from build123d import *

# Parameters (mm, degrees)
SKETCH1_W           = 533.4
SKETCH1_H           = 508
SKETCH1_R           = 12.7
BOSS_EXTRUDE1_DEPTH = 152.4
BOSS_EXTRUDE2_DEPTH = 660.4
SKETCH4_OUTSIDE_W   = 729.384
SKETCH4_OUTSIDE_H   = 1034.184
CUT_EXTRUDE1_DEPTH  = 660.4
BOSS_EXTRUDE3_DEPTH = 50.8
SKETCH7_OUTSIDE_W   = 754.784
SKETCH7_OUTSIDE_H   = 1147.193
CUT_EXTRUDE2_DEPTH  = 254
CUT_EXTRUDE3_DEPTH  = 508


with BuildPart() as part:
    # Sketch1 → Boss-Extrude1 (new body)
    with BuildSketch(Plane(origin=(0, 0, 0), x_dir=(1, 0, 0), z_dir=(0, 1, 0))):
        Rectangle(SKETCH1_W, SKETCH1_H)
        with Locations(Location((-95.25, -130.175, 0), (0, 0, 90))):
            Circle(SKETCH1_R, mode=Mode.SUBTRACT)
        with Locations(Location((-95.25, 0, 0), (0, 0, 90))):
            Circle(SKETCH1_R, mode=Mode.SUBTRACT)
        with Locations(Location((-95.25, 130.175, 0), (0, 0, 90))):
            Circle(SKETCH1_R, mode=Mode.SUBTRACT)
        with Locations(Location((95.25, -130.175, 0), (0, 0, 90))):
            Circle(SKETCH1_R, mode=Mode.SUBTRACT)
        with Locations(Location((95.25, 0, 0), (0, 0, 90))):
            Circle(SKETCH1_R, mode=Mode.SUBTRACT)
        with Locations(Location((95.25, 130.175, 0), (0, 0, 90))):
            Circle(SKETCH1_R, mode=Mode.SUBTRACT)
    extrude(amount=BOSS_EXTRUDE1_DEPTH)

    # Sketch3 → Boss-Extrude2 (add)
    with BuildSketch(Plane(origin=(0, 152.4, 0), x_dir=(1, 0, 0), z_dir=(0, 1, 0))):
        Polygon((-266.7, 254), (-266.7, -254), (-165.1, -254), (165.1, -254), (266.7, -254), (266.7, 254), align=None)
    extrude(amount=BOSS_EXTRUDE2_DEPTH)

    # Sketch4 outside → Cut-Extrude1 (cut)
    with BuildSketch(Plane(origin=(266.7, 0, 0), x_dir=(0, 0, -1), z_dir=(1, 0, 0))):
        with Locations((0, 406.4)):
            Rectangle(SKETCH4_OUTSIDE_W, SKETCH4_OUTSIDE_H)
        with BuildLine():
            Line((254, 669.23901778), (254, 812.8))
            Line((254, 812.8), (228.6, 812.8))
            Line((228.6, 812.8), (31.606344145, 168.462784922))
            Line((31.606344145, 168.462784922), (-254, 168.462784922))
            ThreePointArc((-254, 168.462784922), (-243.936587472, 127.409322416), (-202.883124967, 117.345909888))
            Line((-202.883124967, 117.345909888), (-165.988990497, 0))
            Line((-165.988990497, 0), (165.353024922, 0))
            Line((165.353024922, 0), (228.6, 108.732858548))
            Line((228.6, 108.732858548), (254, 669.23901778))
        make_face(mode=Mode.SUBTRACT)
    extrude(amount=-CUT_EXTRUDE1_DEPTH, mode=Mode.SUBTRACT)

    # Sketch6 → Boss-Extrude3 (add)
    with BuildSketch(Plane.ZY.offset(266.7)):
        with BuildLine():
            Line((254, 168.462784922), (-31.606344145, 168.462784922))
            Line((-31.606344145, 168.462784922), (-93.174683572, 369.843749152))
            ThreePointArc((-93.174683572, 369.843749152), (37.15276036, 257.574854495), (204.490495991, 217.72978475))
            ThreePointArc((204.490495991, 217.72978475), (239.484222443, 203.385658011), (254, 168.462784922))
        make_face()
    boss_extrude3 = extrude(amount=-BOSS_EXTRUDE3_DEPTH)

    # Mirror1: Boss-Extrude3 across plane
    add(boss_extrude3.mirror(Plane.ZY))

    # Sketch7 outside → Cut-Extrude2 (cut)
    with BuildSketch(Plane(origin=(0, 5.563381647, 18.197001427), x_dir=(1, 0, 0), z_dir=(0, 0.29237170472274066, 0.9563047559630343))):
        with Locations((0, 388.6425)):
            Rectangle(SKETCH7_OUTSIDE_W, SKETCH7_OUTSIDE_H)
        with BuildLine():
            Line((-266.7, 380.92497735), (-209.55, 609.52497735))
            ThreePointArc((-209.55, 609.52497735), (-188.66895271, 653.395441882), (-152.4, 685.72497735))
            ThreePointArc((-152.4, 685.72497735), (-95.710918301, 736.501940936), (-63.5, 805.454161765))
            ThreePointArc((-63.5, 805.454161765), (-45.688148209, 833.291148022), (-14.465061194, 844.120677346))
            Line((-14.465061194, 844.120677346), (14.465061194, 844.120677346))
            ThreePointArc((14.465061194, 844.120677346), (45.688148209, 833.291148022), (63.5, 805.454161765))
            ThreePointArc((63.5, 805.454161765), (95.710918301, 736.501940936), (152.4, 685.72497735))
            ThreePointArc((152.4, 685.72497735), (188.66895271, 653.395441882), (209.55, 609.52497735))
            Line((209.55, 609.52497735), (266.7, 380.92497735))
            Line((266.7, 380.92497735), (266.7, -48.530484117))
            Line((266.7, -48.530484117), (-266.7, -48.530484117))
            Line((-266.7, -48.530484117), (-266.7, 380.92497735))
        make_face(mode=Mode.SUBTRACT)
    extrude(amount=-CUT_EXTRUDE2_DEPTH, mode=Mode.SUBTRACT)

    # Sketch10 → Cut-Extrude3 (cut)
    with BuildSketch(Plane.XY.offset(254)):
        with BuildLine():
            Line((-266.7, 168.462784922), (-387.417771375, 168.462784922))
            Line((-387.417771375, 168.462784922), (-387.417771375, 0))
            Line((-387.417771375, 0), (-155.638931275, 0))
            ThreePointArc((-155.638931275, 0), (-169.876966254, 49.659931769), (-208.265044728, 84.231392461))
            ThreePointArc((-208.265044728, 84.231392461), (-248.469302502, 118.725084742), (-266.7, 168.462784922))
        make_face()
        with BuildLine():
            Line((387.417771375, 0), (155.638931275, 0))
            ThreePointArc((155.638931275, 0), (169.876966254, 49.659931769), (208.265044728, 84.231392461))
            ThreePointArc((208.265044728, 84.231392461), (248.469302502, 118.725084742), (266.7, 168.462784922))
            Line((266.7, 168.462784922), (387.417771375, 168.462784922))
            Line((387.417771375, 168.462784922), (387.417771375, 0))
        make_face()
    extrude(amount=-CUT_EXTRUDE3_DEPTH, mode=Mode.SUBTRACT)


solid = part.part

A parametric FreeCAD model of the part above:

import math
import FreeCAD as App
import Part
import Sketcher
Q = App.Units.Quantity

doc = App.newDocument("Part")
body = doc.addObject("PartDesign::Body", "Body")

# Sketch on XZ plane
sketch1 = doc.addObject("Sketcher::SketchObject", "Sketch")
body.addObject(sketch1)
sketch1.AttachmentSupport = (doc.XZ_Plane, [""])
sketch1.MapMode = "FlatFace"
sketch1.addGeometry([
    Part.LineSegment(App.Vector(-266.7, -254, 0), App.Vector(-266.7, 254, 0)),  # 0
    Part.LineSegment(App.Vector(-266.7, 254, 0), App.Vector(266.7, 254, 0)),  # 1
    Part.LineSegment(App.Vector(266.7, 254, 0), App.Vector(266.7, -254, 0)),  # 2
    Part.LineSegment(App.Vector(266.7, -254, 0), App.Vector(-266.7, -254, 0)),  # 3
    Part.Circle(App.Vector(-95.25, 130.175, 0), App.Vector(0, 0, 1), 12.7),  # 4
    Part.Circle(App.Vector(95.25, 130.175, 0), App.Vector(0, 0, 1), 12.7),  # 5
    Part.Circle(App.Vector(-95.25, 0, 0), App.Vector(0, 0, 1), 12.7),  # 6
    Part.Circle(App.Vector(-95.25, -130.175, 0), App.Vector(0, 0, 1), 12.7),  # 7
    Part.Circle(App.Vector(95.25, 0, 0), App.Vector(0, 0, 1), 12.7),  # 8
    Part.Circle(App.Vector(95.25, -130.175, 0), App.Vector(0, 0, 1), 12.7),  # 9
], False)
sketch1.addConstraint([
    Sketcher.Constraint("Coincident", 0, 2, 1, 1),
    Sketcher.Constraint("Coincident", 1, 2, 2, 1),
    Sketcher.Constraint("Coincident", 2, 2, 3, 1),
    Sketcher.Constraint("Coincident", 3, 2, 0, 1),
    Sketcher.Constraint("Vertical", 0),
    Sketcher.Constraint("Horizontal", 1),
    Sketcher.Constraint("Vertical", 2),
    Sketcher.Constraint("Horizontal", 3),
    Sketcher.Constraint("Equal", 4, 5),
    Sketcher.Constraint("Equal", 5, 6),
    Sketcher.Constraint("Equal", 6, 7),
    Sketcher.Constraint("Equal", 7, 8),
    Sketcher.Constraint("Equal", 8, 9),
    Sketcher.Constraint("Symmetric", 5, 3, 7, 3, -1, 1),
    Sketcher.Constraint("Symmetric", 6, 3, 8, 3, -1, 1),
    Sketcher.Constraint("Symmetric", 4, 3, 9, 3, -1, 1),
    Sketcher.Constraint("Symmetric", 0, 2, 2, 2, -1, 1),
    Sketcher.Constraint("Symmetric", 4, 3, 5, 3, -2),
    Sketcher.Constraint("PointOnObject", 6, 3, -1),
    Sketcher.Constraint("Vertical", 4, 3, 6, 3),
    Sketcher.Constraint("Diameter", 4, Q("1 in")),
    Sketcher.Constraint("DistanceX", 1, 1, 1, 2, Q("21 in")),
    Sketcher.Constraint("DistanceY", 0, 1, 0, 2, Q("20 in")),
    Sketcher.Constraint("DistanceX", 4, 3, 5, 3, Q("7.5 in")),
    Sketcher.Constraint("DistanceY", 7, 3, 4, 3, Q("10.25 in")),
])
pad1 = doc.addObject("PartDesign::Pad", "Pad")
body.addObject(pad1)
pad1.Profile = sketch1
pad1.Length = Q("6 in")
pad1.Reversed = True

# Sketch on XZ plane
sketch2 = doc.addObject("Sketcher::SketchObject", "Sketch001")
body.addObject(sketch2)
sketch2.AttachmentSupport = (doc.XZ_Plane, [""])
sketch2.MapMode = "FlatFace"
sketch2.AttachmentOffset = App.Placement(App.Vector(0, 0, -6 * 25.4), App.Rotation())
sketch2.addGeometry([
    Part.LineSegment(App.Vector(-266.7, -254, 0), App.Vector(-266.7, 254, 0)),
    Part.LineSegment(App.Vector(-266.7, 254, 0), App.Vector(266.7, 254, 0)),
    Part.LineSegment(App.Vector(266.7, 254, 0), App.Vector(266.7, -254, 0)),
    Part.LineSegment(App.Vector(266.7, -254, 0), App.Vector(-266.7, -254, 0)),
], False)
sketch2.addConstraint([
    Sketcher.Constraint("Coincident", 0, 2, 1, 1),
    Sketcher.Constraint("Coincident", 1, 2, 2, 1),
    Sketcher.Constraint("Coincident", 2, 2, 3, 1),
    Sketcher.Constraint("Coincident", 3, 2, 0, 1),
    Sketcher.Constraint("Vertical", 0),
    Sketcher.Constraint("Horizontal", 1),
    Sketcher.Constraint("Vertical", 2),
    Sketcher.Constraint("Horizontal", 3),
    Sketcher.Constraint("Symmetric", 0, 2, 2, 2, -1, 1),
    Sketcher.Constraint("DistanceX", 1, 1, 1, 2, Q("21 in")),
    Sketcher.Constraint("DistanceY", 0, 1, 0, 2, Q("20 in")),
])
pad2 = doc.addObject("PartDesign::Pad", "Pad001")
body.addObject(pad2)
pad2.Profile = sketch2
pad2.Length = Q("26 in")
pad2.Reversed = True

# Sketch on YZ plane
sketch3 = doc.addObject("Sketcher::SketchObject", "Sketch002")
body.addObject(sketch3)
sketch3.AttachmentSupport = (doc.YZ_Plane, [""])
sketch3.MapMode = "FlatFace"
sketch3.AttachmentOffset = App.Placement(App.Vector(0, 0, 10.5 * 25.4), App.Rotation())
sketch3.addGeometry([
    Part.LineSegment(App.Vector(923.492, 364.692, 0), App.Vector(-110.692, 364.692, 0)),  # 0
    Part.LineSegment(App.Vector(-110.692, 364.692, 0), App.Vector(-110.692, -364.692, 0)),  # 1
    Part.LineSegment(App.Vector(-110.692, -364.692, 0), App.Vector(923.492, -364.692, 0)),  # 2
    Part.LineSegment(App.Vector(923.492, -364.692, 0), App.Vector(923.492, 364.692, 0)),  # 3
    Part.LineSegment(App.Vector(812.8, -254, 0), App.Vector(669.239018, -254, 0)),  # 4
    Part.LineSegment(App.Vector(669.239018, -254, 0), App.Vector(108.732859, -228.6, 0)),  # 5
    Part.LineSegment(App.Vector(108.732859, -228.6, 0), App.Vector(0, -165.353025, 0)),  # 6
    Part.LineSegment(App.Vector(0, -165.353025, 0), App.Vector(0, 165.98899, 0)),  # 7
    Part.LineSegment(App.Vector(0, 165.98899, 0), App.Vector(117.34591, 202.883125, 0)),  # 8
    Part.ArcOfCircle(Part.Circle(App.Vector(156.235656, 215.110254, 0), App.Vector(0, 0, 1), 40.766592), math.radians(72.546594), math.radians(197.453406)),  # 9
    Part.LineSegment(App.Vector(168.462785, 254, 0), App.Vector(168.462785, -31.606344, 0)),  # 10
    Part.LineSegment(App.Vector(168.462785, -31.606344, 0), App.Vector(812.8, -228.6, 0)),  # 11
    Part.LineSegment(App.Vector(812.8, -228.6, 0), App.Vector(812.8, -254, 0)),  # 12
], False)
sketch3.addConstraint([
    Sketcher.Constraint("Coincident", 0, 2, 1, 1),
    Sketcher.Constraint("Coincident", 1, 2, 2, 1),
    Sketcher.Constraint("Coincident", 2, 2, 3, 1),
    Sketcher.Constraint("Coincident", 3, 2, 0, 1),
    Sketcher.Constraint("Coincident", 4, 2, 5, 1),
    Sketcher.Constraint("Coincident", 5, 2, 6, 1),
    Sketcher.Constraint("Coincident", 6, 2, 7, 1),
    Sketcher.Constraint("Coincident", 7, 2, 8, 1),
    Sketcher.Constraint("Coincident", 8, 2, 9, 2),
    Sketcher.Constraint("Coincident", 9, 1, 10, 1),
    Sketcher.Constraint("Coincident", 10, 2, 11, 1),
    Sketcher.Constraint("Coincident", 11, 2, 12, 1),
    Sketcher.Constraint("Coincident", 12, 2, 4, 1),
    Sketcher.Constraint("Horizontal", 0),
    Sketcher.Constraint("Vertical", 1),
    Sketcher.Constraint("Horizontal", 2),
    Sketcher.Constraint("Vertical", 3),
    Sketcher.Constraint("Horizontal", 4),
    Sketcher.Constraint("Vertical", 7),
    Sketcher.Constraint("Vertical", 10),
    Sketcher.Constraint("Vertical", 12),
    Sketcher.Constraint("PointOnObject", 6, 2, -2),
    Sketcher.Constraint("Horizontal", 5, 2, 11, 2),
    Sketcher.Constraint("DistanceY", 12, 2, 12, 1, Q("1 in")),
    Sketcher.Constraint("DistanceY", 4, 2, -1, 1, Q("10 in")),
    Sketcher.Constraint("DistanceY", -1, 1, 9, 1, Q("10 in")),
    Sketcher.Constraint("DistanceX", -1, 1, 11, 2, Q("32 in")),
    Sketcher.Constraint("Angle", 11, Q("-17 deg")),
    Sketcher.Constraint("DistanceX", 0, 2, 0, 1, 1034.184),
    Sketcher.Constraint("DistanceY", 1, 2, 1, 1, 729.384),
    Sketcher.Constraint("Radius", 9, 40.766592),
    Sketcher.Constraint("DistanceX", 0, 2, -1, 1, 110.692),
    Sketcher.Constraint("DistanceY", -1, 1, 0, 2, 364.692),
    Sketcher.Constraint("Distance", 5, 561.08138),
    Sketcher.Constraint("DistanceX", 4, 2, 4, 1, 143.560982),
    Sketcher.Constraint("DistanceY", 7, 1, 7, 2, 331.342015),
    Sketcher.Constraint("DistanceY", 10, 2, 10, 1, 285.606344),
    Sketcher.Constraint("DistanceY", -1, 1, 7, 2, 165.98899),
    Sketcher.Constraint("DistanceX", -1, 1, 8, 2, 117.34591),
    Sketcher.Constraint("DistanceX", 9, 3, 4, 2, 513.003361),
])
pocket1 = doc.addObject("PartDesign::Pocket", "Pocket")
body.addObject(pocket1)
pocket1.Profile = sketch3
pocket1.Length = Q("26 in")

# Sketch on YZ plane
sketch4 = doc.addObject("Sketcher::SketchObject", "Sketch003")
body.addObject(sketch4)
sketch4.AttachmentSupport = (doc.YZ_Plane, [""])
sketch4.MapMode = "FlatFace"
sketch4.AttachmentOffset = App.Placement(App.Vector(0, 0, -10.5 * 25.4), App.Rotation())
sketch4.addGeometry([
    Part.LineSegment(App.Vector(168.462785, -31.606344, 0), App.Vector(168.462785, 254, 0)),
    Part.ArcOfCircle(Part.Circle(App.Vector(168.462785, 204.732406, 0), App.Vector(0, 0, 1), 49.267594), math.radians(-0.281331), math.radians(90)),
    Part.ArcOfCircle(Part.Circle(App.Vector(581.535132, 202.704143, 0), App.Vector(0, 0, 1), 363.809732), math.radians(179.718669), math.radians(234.41755)),
    Part.LineSegment(App.Vector(369.843749, -93.174684, 0), App.Vector(168.462785, -31.606344, 0)),
], False)
sketch4.addConstraint([
    Sketcher.Constraint("Coincident", 0, 2, 1, 2),
    Sketcher.Constraint("Tangent", 1, 1, 2, 1),
    Sketcher.Constraint("Coincident", 2, 2, 3, 1),
    Sketcher.Constraint("Coincident", 3, 2, 0, 1),
    Sketcher.Constraint("Vertical", 0),
    Sketcher.Constraint("Vertical", 1, 3, 0, 2),
    Sketcher.Constraint("DistanceY", -1, 1, 0, 2, Q("10 in")),
    Sketcher.Constraint("Angle", 3, Q("163 deg")),
    Sketcher.Constraint("Radius", 1, 49.267594),
    Sketcher.Constraint("Radius", 2, 363.809732),
    Sketcher.Constraint("DistanceY", 0, 1, 0, 2, 285.606344),
    Sketcher.Constraint("DistanceX", -1, 1, 2, 3, 581.535132),
    Sketcher.Constraint("DistanceX", -1, 1, 2, 2, 369.843749),
])
pad3 = doc.addObject("PartDesign::Pad", "Pad002")
body.addObject(pad3)
pad3.Profile = sketch4
pad3.Length = Q("2 in")
doc.recompute()

mirrored = doc.addObject("PartDesign::Mirrored", "Mirrored")
body.addObject(mirrored)
mirrored.Originals = [pad3]
mirrored.MirrorPlane = (doc.YZ_Plane, [""])
body.Tip = mirrored

# Sketch on an angled plane
sketch5 = doc.addObject("Sketcher::SketchObject", "Sketch004")
body.addObject(sketch5)
sketch5.Placement = App.Placement(App.Vector(0, 5.563382, 18.197001), App.Rotation(App.Vector(1, 0, 0), App.Vector(0, 0.956304756, -0.292371705), App.Vector(0, 0.292371705, 0.956304756), "ZXY"))
sketch5.addGeometry([
    Part.LineSegment(App.Vector(-377.392, 962.239, 0), App.Vector(-377.392, -184.954, 0)),  # 0
    Part.LineSegment(App.Vector(-377.392, -184.954, 0), App.Vector(377.392, -184.954, 0)),  # 1
    Part.LineSegment(App.Vector(377.392, -184.954, 0), App.Vector(377.392, 962.239, 0)),  # 2
    Part.LineSegment(App.Vector(377.392, 962.239, 0), App.Vector(-377.392, 962.239, 0)),  # 3
    Part.LineSegment(App.Vector(-266.7, -48.530484, 0), App.Vector(-266.7, 380.924977, 0)),  # 4
    Part.LineSegment(App.Vector(-266.7, 380.924977, 0), App.Vector(-209.55, 609.524977, 0)),  # 5
    Part.ArcOfCircle(Part.Circle(App.Vector(-90.4875, 579.759352, 0), App.Vector(0, 0, 1), 122.726816), math.radians(120.296448), math.radians(165.963757)),  # 6
    Part.ArcOfCircle(Part.Circle(App.Vector(-248.237252, 849.754121, 0), App.Vector(0, 0, 1), 189.974574), math.radians(-59.703552), math.radians(-13.484888)),  # 7
    Part.ArcOfCircle(Part.Circle(App.Vector(-14.465061, 793.695593, 0), App.Vector(0, 0, 1), 50.425085), math.radians(90), math.radians(166.515112)),  # 8
    Part.LineSegment(App.Vector(-14.465061, 844.120678, 0), App.Vector(14.465061, 844.120678, 0)),  # 9
    Part.ArcOfCircle(Part.Circle(App.Vector(14.465061, 793.695593, 0), App.Vector(0, 0, 1), 50.425085), math.radians(13.484888), math.radians(90)),  # 10
    Part.ArcOfCircle(Part.Circle(App.Vector(248.237252, 849.754121, 0), App.Vector(0, 0, 1), 189.974574), math.radians(-166.515112), math.radians(-120.296448)),  # 11
    Part.ArcOfCircle(Part.Circle(App.Vector(90.4875, 579.759352, 0), App.Vector(0, 0, 1), 122.726816), math.radians(14.036243), math.radians(59.703552)),  # 12
    Part.LineSegment(App.Vector(209.55, 609.524977, 0), App.Vector(266.7, 380.924977, 0)),  # 13
    Part.LineSegment(App.Vector(266.7, 380.924977, 0), App.Vector(266.7, -48.530484, 0)),  # 14
    Part.LineSegment(App.Vector(266.7, -48.530484, 0), App.Vector(-266.7, -48.530484, 0)),  # 15
], False)
sketch5.addConstraint([
    Sketcher.Constraint("Coincident", 0, 2, 1, 1),
    Sketcher.Constraint("Coincident", 1, 2, 2, 1),
    Sketcher.Constraint("Coincident", 2, 2, 3, 1),
    Sketcher.Constraint("Coincident", 3, 2, 0, 1),
    Sketcher.Constraint("Coincident", 4, 2, 5, 1),
    Sketcher.Constraint("Tangent", 5, 2, 6, 2),
    Sketcher.Constraint("Tangent", 6, 1, 7, 1),
    Sketcher.Constraint("Tangent", 7, 2, 8, 2),
    Sketcher.Constraint("Tangent", 8, 1, 9, 1),
    Sketcher.Constraint("Tangent", 9, 2, 10, 2),
    Sketcher.Constraint("Tangent", 10, 1, 11, 1),
    Sketcher.Constraint("Tangent", 11, 2, 12, 2),
    Sketcher.Constraint("Tangent", 12, 1, 13, 1),
    Sketcher.Constraint("Coincident", 13, 2, 14, 1),
    Sketcher.Constraint("Coincident", 14, 2, 15, 1),
    Sketcher.Constraint("Coincident", 15, 2, 4, 1),
    Sketcher.Constraint("Vertical", 0),
    Sketcher.Constraint("Horizontal", 1),
    Sketcher.Constraint("Vertical", 2),
    Sketcher.Constraint("Horizontal", 3),
    Sketcher.Constraint("Vertical", 4),
    Sketcher.Constraint("Horizontal", 9),
    Sketcher.Constraint("Vertical", 14),
    Sketcher.Constraint("Horizontal", 15),
    Sketcher.Constraint("Equal", 8, 10),
    Sketcher.Constraint("Equal", 7, 11),
    Sketcher.Constraint("Equal", 6, 12),
    Sketcher.Constraint("Symmetric", 7, 3, 11, 3, -2),
    Sketcher.Constraint("Symmetric", 5, 2, 12, 1, -2),
    Sketcher.Constraint("Horizontal", 4, 2, 13, 2),
    Sketcher.Constraint("DistanceX", 15, 2, 15, 1, Q("21 in")),
    Sketcher.Constraint("DistanceX", 6, 1, -1, 1, Q("6 in")),
    Sketcher.Constraint("DistanceY", 4, 2, 5, 2, Q("9 in")),
    Sketcher.Constraint("DistanceY", 5, 2, 6, 1, Q("3 in")),
    Sketcher.Constraint("DistanceX", 7, 2, 10, 1, Q("5 in")),
    Sketcher.Constraint("DistanceX", 5, 2, -1, 1, Q("8.25 in")),
    Sketcher.Constraint("DistanceX", 1, 1, 1, 2, 754.784),
    Sketcher.Constraint("DistanceY", 0, 2, 0, 1, 1147.193),
    Sketcher.Constraint("Radius", 7, 189.974574),
    Sketcher.Constraint("Radius", 8, 50.425085),
    Sketcher.Constraint("DistanceY", 4, 1, 4, 2, 429.455462),
    Sketcher.Constraint("DistanceX", 0, 2, -1, 1, 377.392),
    Sketcher.Constraint("DistanceY", 0, 2, -1, 1, 184.954),
    Sketcher.Constraint("DistanceY", -1, 1, 7, 3, 849.754121),
])
pocket2 = doc.addObject("PartDesign::Pocket", "Pocket001")
body.addObject(pocket2)
pocket2.Profile = sketch5
pocket2.Length = Q("10 in")

# Sketch on XY plane
sketch6 = doc.addObject("Sketcher::SketchObject", "Sketch005")
body.addObject(sketch6)
sketch6.AttachmentSupport = (doc.XY_Plane, [""])
sketch6.MapMode = "FlatFace"
sketch6.AttachmentOffset = App.Placement(App.Vector(0, 0, 10 * 25.4), App.Rotation())
sketch6.addGeometry([
    Part.LineSegment(App.Vector(-266.7, 168.462785, 0), App.Vector(-387.417771, 168.462785, 0)),  # 0
    Part.LineSegment(App.Vector(-387.417771, 168.462785, 0), App.Vector(-387.417771, 0, 0)),  # 1
    Part.LineSegment(App.Vector(-387.417771, 0, 0), App.Vector(-155.638931, 0, 0)),  # 2
    Part.ArcOfCircle(Part.Circle(App.Vector(-249.360799, 0, 0), App.Vector(0, 0, 1), 93.721868), math.radians(0), math.radians(63.99266)),  # 3
    Part.ArcOfCircle(Part.Circle(App.Vector(-162.254725, 178.535861, 0), App.Vector(0, 0, 1), 104.929892), math.radians(-174.491228), math.radians(-116.00734)),  # 4
    Part.LineSegment(App.Vector(155.638931, 0, 0), App.Vector(387.417771, 0, 0)),  # 5
    Part.LineSegment(App.Vector(387.417771, 0, 0), App.Vector(387.417771, 168.462785, 0)),  # 6
    Part.LineSegment(App.Vector(387.417771, 168.462785, 0), App.Vector(266.7, 168.462785, 0)),  # 7
    Part.ArcOfCircle(Part.Circle(App.Vector(162.254725, 178.535861, 0), App.Vector(0, 0, 1), 104.929892), math.radians(-63.99266), math.radians(-5.508772)),  # 8
    Part.ArcOfCircle(Part.Circle(App.Vector(249.360799, 0, 0), App.Vector(0, 0, 1), 93.721868), math.radians(116.00734), math.radians(180)),  # 9
], False)
sketch6.addConstraint([
    Sketcher.Constraint("Coincident", 0, 2, 1, 1),
    Sketcher.Constraint("Coincident", 1, 2, 2, 1),
    Sketcher.Constraint("Coincident", 2, 2, 3, 1),
    Sketcher.Constraint("Tangent", 3, 2, 4, 2),
    Sketcher.Constraint("Coincident", 4, 1, 0, 1),
    Sketcher.Constraint("Coincident", 5, 2, 6, 1),
    Sketcher.Constraint("Coincident", 6, 2, 7, 1),
    Sketcher.Constraint("Coincident", 7, 2, 8, 2),
    Sketcher.Constraint("Tangent", 8, 1, 9, 1),
    Sketcher.Constraint("Coincident", 9, 2, 5, 1),
    Sketcher.Constraint("Horizontal", 0),
    Sketcher.Constraint("Vertical", 1),
    Sketcher.Constraint("Horizontal", 2),
    Sketcher.Constraint("Horizontal", 5),
    Sketcher.Constraint("Vertical", 6),
    Sketcher.Constraint("Horizontal", 7),
    Sketcher.Constraint("Equal", 4, 8),
    Sketcher.Constraint("Equal", 3, 9),
    Sketcher.Constraint("Symmetric", 3, 3, 9, 3, -1, 1),
    Sketcher.Constraint("Symmetric", 1, 2, 5, 2, -1, 1),
    Sketcher.Constraint("Symmetric", 4, 3, 8, 3, -2),
    Sketcher.Constraint("PointOnObject", 1, 2, -1),
    Sketcher.Constraint("Horizontal", 4, 1, 6, 2),
    Sketcher.Constraint("DistanceX", 4, 1, -1, 1, Q("10.5 in")),
    Sketcher.Constraint("Radius", 3, 93.721868),
    Sketcher.Constraint("Radius", 4, 104.929892),
    Sketcher.Constraint("DistanceX", 0, 2, 0, 1, 120.717771),
    Sketcher.Constraint("DistanceX", 2, 1, 2, 2, 231.77884),
    Sketcher.Constraint("DistanceY", 1, 2, 1, 1, 168.462785),
])
pocket3 = doc.addObject("PartDesign::Pocket", "Pocket002")
body.addObject(pocket3)
pocket3.Profile = sketch6
pocket3.Length = Q("20 in")

doc.recompute()
